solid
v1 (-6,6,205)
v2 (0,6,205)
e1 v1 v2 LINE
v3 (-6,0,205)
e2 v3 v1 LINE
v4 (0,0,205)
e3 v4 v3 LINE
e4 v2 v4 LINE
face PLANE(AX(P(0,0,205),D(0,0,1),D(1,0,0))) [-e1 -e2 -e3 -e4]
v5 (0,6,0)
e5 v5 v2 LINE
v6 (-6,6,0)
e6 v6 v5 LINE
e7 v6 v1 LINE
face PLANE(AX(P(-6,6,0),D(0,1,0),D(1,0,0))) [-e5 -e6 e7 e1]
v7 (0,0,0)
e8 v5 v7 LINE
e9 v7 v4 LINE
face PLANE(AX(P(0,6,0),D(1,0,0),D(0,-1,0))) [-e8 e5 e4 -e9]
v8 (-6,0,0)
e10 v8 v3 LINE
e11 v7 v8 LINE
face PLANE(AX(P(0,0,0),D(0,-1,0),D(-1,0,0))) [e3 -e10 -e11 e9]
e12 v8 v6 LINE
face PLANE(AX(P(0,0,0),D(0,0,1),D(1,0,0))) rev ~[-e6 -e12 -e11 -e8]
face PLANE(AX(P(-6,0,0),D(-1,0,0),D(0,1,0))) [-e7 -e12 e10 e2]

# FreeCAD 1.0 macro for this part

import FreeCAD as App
import Part
import Sketcher

V = App.Vector
Q = App.Units.Quantity


def add_polygon(sketch, points):
    """Adds a closed chain of lines whose ends are joined by coincident constraints."""
    first, n = sketch.GeometryCount, len(points)
    for a, b in zip(points, points[1:] + points[:1]):
        sketch.addGeometry(Part.LineSegment(App.Vector(*a, 0), App.Vector(*b, 0)), False)
    for i in range(n):
        sketch.addConstraint(Sketcher.Constraint("Coincident", first + i, 2, first + (i + 1) % n, 1))

doc = App.newDocument("Part")
body = doc.addObject("PartDesign::Body", "Body")

# Sketch on XY plane
sketch1 = doc.addObject("Sketcher::SketchObject", "Sketch")
body.addObject(sketch1)
sketch1.AttachmentSupport = (doc.XY_Plane, [""])
sketch1.MapMode = "FlatFace"
add_polygon(sketch1, [(0, 6), (-6, 6), (-6, 0), (0, 0)])  # lines 0-3
sketch1.addConstraint([
    Sketcher.Constraint("Horizontal", 0),
    Sketcher.Constraint("Vertical", 1),
    Sketcher.Constraint("Horizontal", 2),
    Sketcher.Constraint("Vertical", 3),
    Sketcher.Constraint("Coincident", 2, 2, -1, 1),
    Sketcher.Constraint("Equal", 2, 1),
    Sketcher.Constraint("DistanceX", 0, 2, 0, 1, Q("6 mm")),
])
pad1 = doc.addObject("PartDesign::Pad", "Pad")
body.addObject(pad1)
pad1.Profile = sketch1
pad1.Length = 205

doc.recompute()
